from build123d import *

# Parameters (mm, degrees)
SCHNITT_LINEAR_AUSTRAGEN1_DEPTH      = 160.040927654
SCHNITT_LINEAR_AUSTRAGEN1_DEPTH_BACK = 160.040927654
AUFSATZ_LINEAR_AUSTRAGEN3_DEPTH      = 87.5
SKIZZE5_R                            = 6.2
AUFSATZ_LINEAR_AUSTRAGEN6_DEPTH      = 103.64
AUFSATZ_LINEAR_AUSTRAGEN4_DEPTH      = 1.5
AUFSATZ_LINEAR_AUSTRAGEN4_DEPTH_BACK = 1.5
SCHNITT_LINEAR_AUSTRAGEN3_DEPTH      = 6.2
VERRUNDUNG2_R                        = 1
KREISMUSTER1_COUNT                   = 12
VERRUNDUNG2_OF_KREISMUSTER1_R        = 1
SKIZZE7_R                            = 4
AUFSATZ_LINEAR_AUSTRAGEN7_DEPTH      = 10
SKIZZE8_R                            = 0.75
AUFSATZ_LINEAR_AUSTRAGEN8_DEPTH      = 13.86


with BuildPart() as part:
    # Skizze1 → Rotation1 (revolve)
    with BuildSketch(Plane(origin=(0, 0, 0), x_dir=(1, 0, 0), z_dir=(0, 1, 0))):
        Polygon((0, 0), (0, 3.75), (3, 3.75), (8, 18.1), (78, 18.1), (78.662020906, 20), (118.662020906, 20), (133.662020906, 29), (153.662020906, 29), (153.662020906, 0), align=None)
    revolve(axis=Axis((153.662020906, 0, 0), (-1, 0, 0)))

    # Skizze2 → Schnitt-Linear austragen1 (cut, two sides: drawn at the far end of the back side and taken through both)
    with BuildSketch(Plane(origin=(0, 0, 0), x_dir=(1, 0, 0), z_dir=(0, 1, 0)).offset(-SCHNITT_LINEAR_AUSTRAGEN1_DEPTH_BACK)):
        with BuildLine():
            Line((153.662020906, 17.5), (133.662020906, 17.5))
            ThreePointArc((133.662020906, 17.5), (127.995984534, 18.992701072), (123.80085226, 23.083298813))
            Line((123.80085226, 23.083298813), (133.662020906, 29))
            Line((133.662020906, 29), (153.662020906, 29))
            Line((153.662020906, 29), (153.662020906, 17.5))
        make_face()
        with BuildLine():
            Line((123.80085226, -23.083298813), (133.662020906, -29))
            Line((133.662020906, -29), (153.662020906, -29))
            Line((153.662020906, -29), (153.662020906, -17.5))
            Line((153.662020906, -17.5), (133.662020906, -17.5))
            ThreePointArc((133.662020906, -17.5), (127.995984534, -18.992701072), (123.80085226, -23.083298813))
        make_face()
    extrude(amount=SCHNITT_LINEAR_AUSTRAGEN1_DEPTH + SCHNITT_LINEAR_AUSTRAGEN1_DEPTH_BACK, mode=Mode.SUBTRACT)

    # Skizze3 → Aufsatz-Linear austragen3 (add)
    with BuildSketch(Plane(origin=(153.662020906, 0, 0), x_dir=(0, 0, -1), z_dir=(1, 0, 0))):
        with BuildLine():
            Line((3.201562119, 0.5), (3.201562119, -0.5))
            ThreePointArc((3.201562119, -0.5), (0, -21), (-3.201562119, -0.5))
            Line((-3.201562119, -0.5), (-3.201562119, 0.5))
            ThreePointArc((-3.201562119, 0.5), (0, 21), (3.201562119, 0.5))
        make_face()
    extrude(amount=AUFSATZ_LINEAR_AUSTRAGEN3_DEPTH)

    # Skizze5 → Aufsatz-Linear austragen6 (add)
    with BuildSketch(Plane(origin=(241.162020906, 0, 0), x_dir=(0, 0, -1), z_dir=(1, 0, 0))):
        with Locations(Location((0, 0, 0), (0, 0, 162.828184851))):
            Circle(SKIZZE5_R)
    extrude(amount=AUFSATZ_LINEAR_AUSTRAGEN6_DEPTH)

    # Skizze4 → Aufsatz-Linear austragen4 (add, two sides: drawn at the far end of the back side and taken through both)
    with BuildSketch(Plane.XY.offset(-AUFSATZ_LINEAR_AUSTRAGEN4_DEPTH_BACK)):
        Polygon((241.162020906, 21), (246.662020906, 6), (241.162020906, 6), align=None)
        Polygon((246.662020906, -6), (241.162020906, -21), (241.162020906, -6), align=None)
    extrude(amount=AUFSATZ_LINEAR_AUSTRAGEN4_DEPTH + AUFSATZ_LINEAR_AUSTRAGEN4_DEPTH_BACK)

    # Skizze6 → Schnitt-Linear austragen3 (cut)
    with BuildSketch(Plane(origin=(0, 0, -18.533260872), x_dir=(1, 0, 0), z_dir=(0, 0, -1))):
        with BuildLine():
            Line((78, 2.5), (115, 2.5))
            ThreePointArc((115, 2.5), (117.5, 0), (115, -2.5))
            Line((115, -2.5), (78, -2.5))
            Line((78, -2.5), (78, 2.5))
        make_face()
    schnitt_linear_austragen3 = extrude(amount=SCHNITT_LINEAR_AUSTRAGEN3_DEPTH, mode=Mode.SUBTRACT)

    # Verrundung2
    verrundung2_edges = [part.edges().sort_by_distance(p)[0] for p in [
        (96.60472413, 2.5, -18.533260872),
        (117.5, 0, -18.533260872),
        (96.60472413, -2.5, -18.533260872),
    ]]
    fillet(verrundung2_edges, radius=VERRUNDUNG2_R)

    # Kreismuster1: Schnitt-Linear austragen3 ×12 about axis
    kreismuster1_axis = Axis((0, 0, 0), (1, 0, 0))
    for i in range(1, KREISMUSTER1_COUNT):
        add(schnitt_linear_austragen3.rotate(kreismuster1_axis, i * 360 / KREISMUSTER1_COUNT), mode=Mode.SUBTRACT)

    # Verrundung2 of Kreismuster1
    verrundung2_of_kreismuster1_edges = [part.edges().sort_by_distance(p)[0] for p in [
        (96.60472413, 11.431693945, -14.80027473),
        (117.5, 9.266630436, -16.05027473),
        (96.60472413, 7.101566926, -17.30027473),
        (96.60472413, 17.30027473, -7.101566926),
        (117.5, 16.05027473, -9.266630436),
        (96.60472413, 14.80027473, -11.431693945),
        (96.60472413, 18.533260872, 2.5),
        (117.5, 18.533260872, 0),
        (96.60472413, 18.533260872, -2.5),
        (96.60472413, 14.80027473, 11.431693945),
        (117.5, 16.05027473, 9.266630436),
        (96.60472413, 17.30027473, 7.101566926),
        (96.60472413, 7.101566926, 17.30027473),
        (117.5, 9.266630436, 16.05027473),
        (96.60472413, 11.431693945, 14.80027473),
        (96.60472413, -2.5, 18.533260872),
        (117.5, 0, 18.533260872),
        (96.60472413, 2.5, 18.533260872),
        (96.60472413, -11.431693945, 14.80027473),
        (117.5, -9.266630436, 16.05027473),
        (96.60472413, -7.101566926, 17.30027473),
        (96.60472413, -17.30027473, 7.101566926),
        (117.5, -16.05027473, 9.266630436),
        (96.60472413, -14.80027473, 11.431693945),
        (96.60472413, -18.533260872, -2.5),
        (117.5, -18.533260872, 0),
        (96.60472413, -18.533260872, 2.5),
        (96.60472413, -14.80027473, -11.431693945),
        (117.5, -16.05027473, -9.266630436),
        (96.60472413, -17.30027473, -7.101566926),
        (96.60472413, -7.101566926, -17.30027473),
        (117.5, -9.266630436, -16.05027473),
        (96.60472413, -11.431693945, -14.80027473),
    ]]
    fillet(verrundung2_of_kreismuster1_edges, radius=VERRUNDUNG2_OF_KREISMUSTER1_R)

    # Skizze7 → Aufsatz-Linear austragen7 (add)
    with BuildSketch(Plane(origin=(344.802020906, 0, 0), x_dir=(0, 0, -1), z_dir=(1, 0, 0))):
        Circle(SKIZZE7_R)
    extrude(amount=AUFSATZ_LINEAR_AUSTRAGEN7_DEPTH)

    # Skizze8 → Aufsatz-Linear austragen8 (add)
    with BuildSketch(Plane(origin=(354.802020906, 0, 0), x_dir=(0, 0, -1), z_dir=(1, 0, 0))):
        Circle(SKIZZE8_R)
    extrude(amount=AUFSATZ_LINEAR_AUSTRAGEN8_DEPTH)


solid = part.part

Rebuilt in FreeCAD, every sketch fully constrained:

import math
import FreeCAD as App
import Part
import Sketcher

V = App.Vector


def edges_at(feature, points):
    """Names of the edges that pass closest to the given points."""
    edges = feature.Shape.Edges
    near = lambda p: min(range(len(edges)), key=lambda i: edges[i].distToShape(Part.Vertex(*p))[0])
    return sorted({f"Edge{near(p) + 1}" for p in points})

doc = App.newDocument("Part")
params = doc.addObject("Spreadsheet::Sheet", "Params")
for row, (alias, value) in enumerate([
    ("sketch1_width", "20 mm"),
    ("sketch1_width2", "40 mm"),
    ("sketch1_width3", "70 mm"),
    ("sketch1_width4", "3 mm"),
    ("sketch1_height", "29 mm"),
    ("revolution_angle", "360 deg"),
    ("sketch2_radius", "11.5 mm"),
    ("sketch2_width", "20 mm"),
    ("sketch3_radius", "10.5 mm"),
    ("sketch3_width", "1 mm"),
    ("pad1_length", "87.5 mm"),
    ("sketch4_diameter", "12.4 mm"),
    ("pad2_length", "103.64 mm"),
    ("sketch5_height", "15 mm"),
    ("sketch5_width", "5.5 mm"),
    ("pad3_length", "1.5 mm"),
    ("pad3_length2", "1.5 mm"),
    ("sketch6_radius", "2.5 mm"),
    ("sketch6_width", "37 mm"),
    ("pocket2_length", "6.2 mm"),
    ("fillet_radius", "1 mm"),
    ("fillet2_radius", "1 mm"),
    ("sketch7_diameter", "8 mm"),
    ("pad4_length", "10 mm"),
    ("sketch8_diameter", "1.5 mm"),
    ("pad5_length", "13.86 mm"),
], start=1):
    params.set(f"A{row}", alias)
    params.set(f"B{row}", "=" + value)
    params.setAlias(f"B{row}", alias)

body = doc.addObject("PartDesign::Body", "Body")

# Sketch on XZ plane
sketch1 = body.newObject("Sketcher::SketchObject", "Sketch")
sketch1.AttachmentSupport = (doc.getObject("XZ_Plane"), [""])
sketch1.MapMode = "FlatFace"
sketch1.addGeometry([
    Part.LineSegment(V(0, -3.8, 0), V(0, 0, 0)),  # 0
    Part.LineSegment(V(0, 0, 0), V(153.7, 0, 0)),  # 1
    Part.LineSegment(V(153.7, 0, 0), V(153.7, -29, 0)),  # 2
    Part.LineSegment(V(153.7, -29, 0), V(133.7, -29, 0)),  # 3
    Part.LineSegment(V(133.7, -29, 0), V(118.7, -20, 0)),  # 4
    Part.LineSegment(V(118.7, -20, 0), V(78.7, -20, 0)),  # 5
    Part.LineSegment(V(78.7, -20, 0), V(78, -18.1, 0)),  # 6
    Part.LineSegment(V(78, -18.1, 0), V(8, -18.1, 0)),  # 7
    Part.LineSegment(V(8, -18.1, 0), V(3, -3.8, 0)),  # 8
    Part.LineSegment(V(3, -3.8, 0), V(0, -3.8, 0)),  # 9
], False)
sketch1.addConstraint([
    Sketcher.Constraint("Coincident", 0, 2, 1, 1),
    Sketcher.Constraint("Coincident", 1, 2, 2, 1),
    Sketcher.Constraint("Coincident", 2, 2, 3, 1),
    Sketcher.Constraint("Coincident", 3, 2, 4, 1),
    Sketcher.Constraint("Coincident", 4, 2, 5, 1),
    Sketcher.Constraint("Coincident", 5, 2, 6, 1),
    Sketcher.Constraint("Coincident", 6, 2, 7, 1),
    Sketcher.Constraint("Coincident", 7, 2, 8, 1),
    Sketcher.Constraint("Coincident", 8, 2, 9, 1),
    Sketcher.Constraint("Coincident", 9, 2, 0, 1),
    Sketcher.Constraint("Vertical", 0),
    Sketcher.Constraint("Horizontal", 1),
    Sketcher.Constraint("Vertical", 2),
    Sketcher.Constraint("Horizontal", 3),
    Sketcher.Constraint("Horizontal", 5),
    Sketcher.Constraint("Horizontal", 7),
    Sketcher.Constraint("Horizontal", 9),
    Sketcher.Constraint("Coincident", 0, 2, -1, 1),
    Sketcher.Constraint("Parallel", 6, 8),
    Sketcher.Constraint("DistanceX", 3, 2, 3, 1, 20.0),
    Sketcher.Constraint("DistanceX", 5, 2, 5, 1, 40.0),
    Sketcher.Constraint("DistanceX", 7, 2, 7, 1, 70.0),
    Sketcher.Constraint("DistanceX", 9, 2, 9, 1, 3.0),
    Sketcher.Constraint("DistanceY", 2, 2, 2, 1, 29.0),
    Sketcher.Constraint("DistanceY", 4, 2, -1, 1, 20.0),
    Sketcher.Constraint("DistanceX", -1, 1, 6, 2, 78.0),
    Sketcher.Constraint("DistanceX", 4, 2, 3, 2, 15.0),
    Sketcher.Constraint("DistanceY", 0, 1, 0, 2, 3.75),
    Sketcher.Constraint("DistanceY", 6, 2, -1, 1, 18.1),
])
sketch1.setExpression("Constraints[19]", "Params.sketch1_width")
sketch1.setExpression("Constraints[20]", "Params.sketch1_width2")
sketch1.setExpression("Constraints[21]", "Params.sketch1_width3")
sketch1.setExpression("Constraints[22]", "Params.sketch1_width4")
sketch1.setExpression("Constraints[23]", "Params.sketch1_height")
revolution = body.newObject("PartDesign::Revolution", "Revolution")
revolution.Profile = sketch1
revolution.ReferenceAxis = (sketch1, ["H_Axis"])
revolution.setExpression("Angle", "Params.revolution_angle")

# Sketch on XZ plane
sketch2 = body.newObject("Sketcher::SketchObject", "Sketch001")
sketch2.AttachmentSupport = (doc.getObject("XZ_Plane"), [""])
sketch2.MapMode = "FlatFace"
sketch2.addGeometry([
    Part.LineSegment(V(134, -18, 0), V(154, -18, 0)),  # 0
    Part.LineSegment(V(154, -18, 0), V(154, -29, 0)),  # 1
    Part.LineSegment(V(154, -29, 0), V(134, -29, 0)),  # 2
    Part.LineSegment(V(134, -29, 0), V(124, -23, 0)),  # 3
    Part.ArcOfCircle(Part.Circle(V(134, -29, 0), V(0, 0, 1), 11), math.radians(90), math.radians(149)),  # 4
    Part.LineSegment(V(124, 23, 0), V(134, 29, 0)),  # 5
    Part.LineSegment(V(134, 29, 0), V(154, 29, 0)),  # 6
    Part.LineSegment(V(154, 29, 0), V(154, 18, 0)),  # 7
    Part.LineSegment(V(154, 18, 0), V(134, 18, 0)),  # 8
    Part.ArcOfCircle(Part.Circle(V(134, 29, 0), V(0, 0, 1), 11), math.radians(-149), math.radians(-90)),  # 9
], False)
sketch2.addConstraint([
    Sketcher.Constraint("Coincident", 0, 2, 1, 1),
    Sketcher.Constraint("Coincident", 1, 2, 2, 1),
    Sketcher.Constraint("Coincident", 2, 2, 3, 1),
    Sketcher.Constraint("Coincident", 3, 2, 4, 2),
    Sketcher.Constraint("Tangent", 4, 1, 0, 1),
    Sketcher.Constraint("Coincident", 5, 2, 6, 1),
    Sketcher.Constraint("Coincident", 6, 2, 7, 1),
    Sketcher.Constraint("Coincident", 7, 2, 8, 1),
    Sketcher.Constraint("Tangent", 8, 2, 9, 2),
    Sketcher.Constraint("Coincident", 9, 1, 5, 1),
    Sketcher.Constraint("Horizontal", 0),
    Sketcher.Constraint("Vertical", 1),
    Sketcher.Constraint("Horizontal", 2),
    Sketcher.Constraint("Horizontal", 6),
    Sketcher.Constraint("Vertical", 7),
    Sketcher.Constraint("Horizontal", 8),
    Sketcher.Constraint("Coincident", 2, 2, 4, 3),
    Sketcher.Constraint("Coincident", 5, 2, 9, 3),
    Sketcher.Constraint("Equal", 4, 9),
    Sketcher.Constraint("Symmetric", 4, 3, 9, 3, -1),
    Sketcher.Constraint("Vertical", 1, 2, 6, 2),
    Sketcher.Constraint("Vertical", 3, 2, 9, 1),
    Sketcher.Constraint("Radius", 4, 11.5),
    Sketcher.Constraint("DistanceX", 0, 1, 0, 2, 20.0),
    Sketcher.Constraint("DistanceY", 4, 3, -1, 1, 29.0),
    Sketcher.Constraint("DistanceY", 3, 2, -1, 1, 23.083299),
    Sketcher.Constraint("DistanceX", -1, 1, 4, 3, 133.662021),
])
sketch2.setExpression("Constraints[22]", "Params.sketch2_radius")
sketch2.setExpression("Constraints[23]", "Params.sketch2_width")
pocket1 = body.newObject("PartDesign::Pocket", "Pocket")
pocket1.Profile = sketch2
pocket1.Type = "ThroughAll"
pocket1.Midplane = True

# Sketch on YZ plane
sketch3 = body.newObject("Sketcher::SketchObject", "Sketch002")
sketch3.AttachmentSupport = (doc.getObject("YZ_Plane"), [""])
sketch3.MapMode = "FlatFace"
sketch3.AttachmentOffset = App.Placement(V(0, 0, 153.662021), App.Rotation())
sketch3.addGeometry([
    Part.LineSegment(V(-0.5, -3.2, 0), V(0.5, -3.2, 0)),
    Part.ArcOfCircle(Part.Circle(V(10.5, 0, 0), V(0, 0, 1), 10.5), math.radians(-162), math.radians(162)),
    Part.LineSegment(V(0.5, 3.2, 0), V(-0.5, 3.2, 0)),
    Part.ArcOfCircle(Part.Circle(V(-10.5, 0, 0), V(0, 0, 1), 10.5), math.radians(18), math.radians(342)),
], False)
sketch3.addConstraint([
    Sketcher.Constraint("Coincident", 0, 2, 1, 1),
    Sketcher.Constraint("Coincident", 1, 2, 2, 1),
    Sketcher.Constraint("Coincident", 2, 2, 3, 1),
    Sketcher.Constraint("Coincident", 3, 2, 0, 1),
    Sketcher.Constraint("Horizontal", 0),
    Sketcher.Constraint("Horizontal", 2),
    Sketcher.Constraint("Equal", 1, 3),
    Sketcher.Constraint("Symmetric", 1, 3, 3, 3, -1, 1),
    Sketcher.Constraint("Symmetric", 0, 2, 1, 2, -1),
    Sketcher.Constraint("Radius", 1, 10.5),
    Sketcher.Constraint("DistanceX", 0, 1, 0, 2, 1.0),
    Sketcher.Constraint("DistanceX", 3, 3, 1, 3, 21.0),
])
sketch3.setExpression("Constraints[9]", "Params.sketch3_radius")
sketch3.setExpression("Constraints[10]", "Params.sketch3_width")
pad1 = body.newObject("PartDesign::Pad", "Pad")
pad1.Profile = sketch3
pad1.setExpression("Length", "Params.pad1_length")

# Sketch on YZ plane
sketch4 = body.newObject("Sketcher::SketchObject", "Sketch003")
sketch4.AttachmentSupport = (doc.getObject("YZ_Plane"), [""])
sketch4.MapMode = "FlatFace"
sketch4.AttachmentOffset = App.Placement(V(0, 0, 241.162021), App.Rotation())
sketch4.addGeometry(Part.Circle(V(0, 0, 0), V(0, 0, 1), 6), False)
sketch4.addConstraint([
    Sketcher.Constraint("Coincident", 0, 3, -1, 1),
    Sketcher.Constraint("Diameter", 0, 12.4),
])
sketch4.setExpression("Constraints[1]", "Params.sketch4_diameter")
pad2 = body.newObject("PartDesign::Pad", "Pad001")
pad2.Profile = sketch4
pad2.setExpression("Length", "Params.pad2_length")

# Sketch on XY plane
sketch5 = body.newObject("Sketcher::SketchObject", "Sketch004")
sketch5.AttachmentSupport = (doc.getObject("XY_Plane"), [""])
sketch5.MapMode = "FlatFace"
sketch5.addGeometry([
    Part.LineSegment(V(247, 6, 0), V(241, 21, 0)),  # 0
    Part.LineSegment(V(241, 21, 0), V(241, 6, 0)),  # 1
    Part.LineSegment(V(241, 6, 0), V(247, 6, 0)),  # 2
    Part.LineSegment(V(241, -21, 0), V(247, -6, 0)),  # 3
    Part.LineSegment(V(247, -6, 0), V(241, -6, 0)),  # 4
    Part.LineSegment(V(241, -6, 0), V(241, -21, 0)),  # 5
], False)
sketch5.addConstraint([
    Sketcher.Constraint("Coincident", 0, 2, 1, 1),
    Sketcher.Constraint("Coincident", 1, 2, 2, 1),
    Sketcher.Constraint("Coincident", 2, 2, 0, 1),
    Sketcher.Constraint("Coincident", 3, 2, 4, 1),
    Sketcher.Constraint("Coincident", 4, 2, 5, 1),
    Sketcher.Constraint("Coincident", 5, 2, 3, 1),
    Sketcher.Constraint("Vertical", 1),
    Sketcher.Constraint("Horizontal", 2),
    Sketcher.Constraint("Horizontal", 4),
    Sketcher.Constraint("Vertical", 5),
    Sketcher.Constraint("Symmetric", 2, 2, 3, 2, -1),
    Sketcher.Constraint("Symmetric", 0, 2, 5, 2, -1),
    Sketcher.Constraint("DistanceY", 1, 2, 1, 1, 15.0),
    Sketcher.Constraint("DistanceX", 2, 1, 2, 2, 5.5),
    Sketcher.Constraint("DistanceY", -1, 1, 0, 2, 21.0),
    Sketcher.Constraint("DistanceX", -1, 1, 0, 2, 241.162021),
])
sketch5.setExpression("Constraints[12]", "Params.sketch5_height")
sketch5.setExpression("Constraints[13]", "Params.sketch5_width")
pad3 = body.newObject("PartDesign::Pad", "Pad002")
pad3.Profile = sketch5
pad3.Type = "TwoLengths"
pad3.setExpression("Length", "Params.pad3_length")
pad3.setExpression("Length2", "Params.pad3_length2")

# Sketch on XY plane
sketch6 = body.newObject("Sketcher::SketchObject", "Sketch005")
sketch6.AttachmentSupport = (doc.getObject("XY_Plane"), [""])
sketch6.MapMode = "FlatFace"
sketch6.AttachmentOffset = App.Placement(V(0, 0, -18.533261), App.Rotation())
sketch6.addGeometry([
    Part.LineSegment(V(115, -2.5, 0), V(78, -2.5, 0)),
    Part.LineSegment(V(78, -2.5, 0), V(78, 2.5, 0)),
    Part.LineSegment(V(78, 2.5, 0), V(115, 2.5, 0)),
    Part.ArcOfCircle(Part.Circle(V(115, 0, 0), V(0, 0, 1), 2.5), math.radians(-90), math.radians(90)),
], False)
sketch6.addConstraint([
    Sketcher.Constraint("Coincident", 0, 2, 1, 1),
    Sketcher.Constraint("Coincident", 1, 2, 2, 1),
    Sketcher.Constraint("Tangent", 2, 2, 3, 2),
    Sketcher.Constraint("Tangent", 3, 1, 0, 1),
    Sketcher.Constraint("Horizontal", 0),
    Sketcher.Constraint("Vertical", 1),
    Sketcher.Constraint("Horizontal", 2),
    Sketcher.Constraint("PointOnObject", 3, 3, -1),
    Sketcher.Constraint("Radius", 3, 2.5),
    Sketcher.Constraint("DistanceX", 0, 2, 0, 1, 37.0),
    Sketcher.Constraint("DistanceX", -1, 1, 3, 3, 115.0),
])
sketch6.setExpression("Constraints[8]", "Params.sketch6_radius")
sketch6.setExpression("Constraints[9]", "Params.sketch6_width")
pocket2 = body.newObject("PartDesign::Pocket", "Pocket001")
pocket2.Profile = sketch6
pocket2.setExpression("Length", "Params.pocket2_length")
doc.recompute()

fillet = body.newObject("PartDesign::Fillet", "Fillet")
fillet.Base = (pocket2, edges_at(pocket2, [(96.605, 2.5, -18.533), (117.5, 0, -18.533), (96.605, -2.5, -18.533)]))
fillet.setExpression("Radius", "Params.fillet_radius")
doc.recompute()

polarpattern = body.newObject("PartDesign::PolarPattern", "PolarPattern")
polarpattern.Originals = [pocket2]
polarpattern.Axis = (doc.getObject("X_Axis"), [""])
polarpattern.Angle = 360
polarpattern.Occurrences = 12
body.Tip = polarpattern
doc.recompute()

fillet2 = body.newObject("PartDesign::Fillet", "Fillet001")
fillet2.Base = (polarpattern, edges_at(polarpattern, [
    (96.605, 11.432, -14.8),
    (117.5, 9.267, -16.05),
    (96.605, 7.102, -17.3),
    (96.605, 17.3, -7.102),
    (117.5, 16.05, -9.267),
    (96.605, 14.8, -11.432),
    (96.605, 18.533, 2.5),
    (117.5, 18.533, 0),
    (96.605, 18.533, -2.5),
    (96.605, 14.8, 11.432),
    (117.5, 16.05, 9.267),
    (96.605, 17.3, 7.102),
    (96.605, 7.102, 17.3),
    (117.5, 9.267, 16.05),
    (96.605, 11.432, 14.8),
    (96.605, -2.5, 18.533),
    (117.5, 0, 18.533),
    (96.605, 2.5, 18.533),
    (96.605, -11.432, 14.8),
    (117.5, -9.267, 16.05),
    (96.605, -7.102, 17.3),
    (96.605, -17.3, 7.102),
    (117.5, -16.05, 9.267),
    (96.605, -14.8, 11.432),
    (96.605, -18.533, -2.5),
    (117.5, -18.533, 0),
    (96.605, -18.533, 2.5),
    (96.605, -14.8, -11.432),
    (117.5, -16.05, -9.267),
    (96.605, -17.3, -7.102),
    (96.605, -7.102, -17.3),
    (117.5, -9.267, -16.05),
    (96.605, -11.432, -14.8),
]))
fillet2.setExpression("Radius", "Params.fillet2_radius")

# Sketch on YZ plane
sketch7 = body.newObject("Sketcher::SketchObject", "Sketch006")
sketch7.AttachmentSupport = (doc.getObject("YZ_Plane"), [""])
sketch7.MapMode = "FlatFace"
sketch7.AttachmentOffset = App.Placement(V(0, 0, 344.802021), App.Rotation())
sketch7.addGeometry(Part.Circle(V(0, 0, 0), V(0, 0, 1), 4), False)
sketch7.addConstraint([
    Sketcher.Constraint("Coincident", 0, 3, -1, 1),
    Sketcher.Constraint("Diameter", 0, 8.0),
])
sketch7.setExpression("Constraints[1]", "Params.sketch7_diameter")
pad4 = body.newObject("PartDesign::Pad", "Pad003")
pad4.Profile = sketch7
pad4.setExpression("Length", "Params.pad4_length")

# Sketch on YZ plane
sketch8 = body.newObject("Sketcher::SketchObject", "Sketch007")
sketch8.AttachmentSupport = (doc.getObject("YZ_Plane"), [""])
sketch8.MapMode = "FlatFace"
sketch8.AttachmentOffset = App.Placement(V(0, 0, 354.802021), App.Rotation())
sketch8.addGeometry(Part.Circle(V(0, 0, 0), V(0, 0, 1), 0.8), False)
sketch8.addConstraint([
    Sketcher.Constraint("Coincident", 0, 3, -1, 1),
    Sketcher.Constraint("Diameter", 0, 1.5),
])
sketch8.setExpression("Constraints[1]", "Params.sketch8_diameter")
pad5 = body.newObject("PartDesign::Pad", "Pad004")
pad5.Profile = sketch8
pad5.setExpression("Length", "Params.pad5_length")

doc.recompute()
